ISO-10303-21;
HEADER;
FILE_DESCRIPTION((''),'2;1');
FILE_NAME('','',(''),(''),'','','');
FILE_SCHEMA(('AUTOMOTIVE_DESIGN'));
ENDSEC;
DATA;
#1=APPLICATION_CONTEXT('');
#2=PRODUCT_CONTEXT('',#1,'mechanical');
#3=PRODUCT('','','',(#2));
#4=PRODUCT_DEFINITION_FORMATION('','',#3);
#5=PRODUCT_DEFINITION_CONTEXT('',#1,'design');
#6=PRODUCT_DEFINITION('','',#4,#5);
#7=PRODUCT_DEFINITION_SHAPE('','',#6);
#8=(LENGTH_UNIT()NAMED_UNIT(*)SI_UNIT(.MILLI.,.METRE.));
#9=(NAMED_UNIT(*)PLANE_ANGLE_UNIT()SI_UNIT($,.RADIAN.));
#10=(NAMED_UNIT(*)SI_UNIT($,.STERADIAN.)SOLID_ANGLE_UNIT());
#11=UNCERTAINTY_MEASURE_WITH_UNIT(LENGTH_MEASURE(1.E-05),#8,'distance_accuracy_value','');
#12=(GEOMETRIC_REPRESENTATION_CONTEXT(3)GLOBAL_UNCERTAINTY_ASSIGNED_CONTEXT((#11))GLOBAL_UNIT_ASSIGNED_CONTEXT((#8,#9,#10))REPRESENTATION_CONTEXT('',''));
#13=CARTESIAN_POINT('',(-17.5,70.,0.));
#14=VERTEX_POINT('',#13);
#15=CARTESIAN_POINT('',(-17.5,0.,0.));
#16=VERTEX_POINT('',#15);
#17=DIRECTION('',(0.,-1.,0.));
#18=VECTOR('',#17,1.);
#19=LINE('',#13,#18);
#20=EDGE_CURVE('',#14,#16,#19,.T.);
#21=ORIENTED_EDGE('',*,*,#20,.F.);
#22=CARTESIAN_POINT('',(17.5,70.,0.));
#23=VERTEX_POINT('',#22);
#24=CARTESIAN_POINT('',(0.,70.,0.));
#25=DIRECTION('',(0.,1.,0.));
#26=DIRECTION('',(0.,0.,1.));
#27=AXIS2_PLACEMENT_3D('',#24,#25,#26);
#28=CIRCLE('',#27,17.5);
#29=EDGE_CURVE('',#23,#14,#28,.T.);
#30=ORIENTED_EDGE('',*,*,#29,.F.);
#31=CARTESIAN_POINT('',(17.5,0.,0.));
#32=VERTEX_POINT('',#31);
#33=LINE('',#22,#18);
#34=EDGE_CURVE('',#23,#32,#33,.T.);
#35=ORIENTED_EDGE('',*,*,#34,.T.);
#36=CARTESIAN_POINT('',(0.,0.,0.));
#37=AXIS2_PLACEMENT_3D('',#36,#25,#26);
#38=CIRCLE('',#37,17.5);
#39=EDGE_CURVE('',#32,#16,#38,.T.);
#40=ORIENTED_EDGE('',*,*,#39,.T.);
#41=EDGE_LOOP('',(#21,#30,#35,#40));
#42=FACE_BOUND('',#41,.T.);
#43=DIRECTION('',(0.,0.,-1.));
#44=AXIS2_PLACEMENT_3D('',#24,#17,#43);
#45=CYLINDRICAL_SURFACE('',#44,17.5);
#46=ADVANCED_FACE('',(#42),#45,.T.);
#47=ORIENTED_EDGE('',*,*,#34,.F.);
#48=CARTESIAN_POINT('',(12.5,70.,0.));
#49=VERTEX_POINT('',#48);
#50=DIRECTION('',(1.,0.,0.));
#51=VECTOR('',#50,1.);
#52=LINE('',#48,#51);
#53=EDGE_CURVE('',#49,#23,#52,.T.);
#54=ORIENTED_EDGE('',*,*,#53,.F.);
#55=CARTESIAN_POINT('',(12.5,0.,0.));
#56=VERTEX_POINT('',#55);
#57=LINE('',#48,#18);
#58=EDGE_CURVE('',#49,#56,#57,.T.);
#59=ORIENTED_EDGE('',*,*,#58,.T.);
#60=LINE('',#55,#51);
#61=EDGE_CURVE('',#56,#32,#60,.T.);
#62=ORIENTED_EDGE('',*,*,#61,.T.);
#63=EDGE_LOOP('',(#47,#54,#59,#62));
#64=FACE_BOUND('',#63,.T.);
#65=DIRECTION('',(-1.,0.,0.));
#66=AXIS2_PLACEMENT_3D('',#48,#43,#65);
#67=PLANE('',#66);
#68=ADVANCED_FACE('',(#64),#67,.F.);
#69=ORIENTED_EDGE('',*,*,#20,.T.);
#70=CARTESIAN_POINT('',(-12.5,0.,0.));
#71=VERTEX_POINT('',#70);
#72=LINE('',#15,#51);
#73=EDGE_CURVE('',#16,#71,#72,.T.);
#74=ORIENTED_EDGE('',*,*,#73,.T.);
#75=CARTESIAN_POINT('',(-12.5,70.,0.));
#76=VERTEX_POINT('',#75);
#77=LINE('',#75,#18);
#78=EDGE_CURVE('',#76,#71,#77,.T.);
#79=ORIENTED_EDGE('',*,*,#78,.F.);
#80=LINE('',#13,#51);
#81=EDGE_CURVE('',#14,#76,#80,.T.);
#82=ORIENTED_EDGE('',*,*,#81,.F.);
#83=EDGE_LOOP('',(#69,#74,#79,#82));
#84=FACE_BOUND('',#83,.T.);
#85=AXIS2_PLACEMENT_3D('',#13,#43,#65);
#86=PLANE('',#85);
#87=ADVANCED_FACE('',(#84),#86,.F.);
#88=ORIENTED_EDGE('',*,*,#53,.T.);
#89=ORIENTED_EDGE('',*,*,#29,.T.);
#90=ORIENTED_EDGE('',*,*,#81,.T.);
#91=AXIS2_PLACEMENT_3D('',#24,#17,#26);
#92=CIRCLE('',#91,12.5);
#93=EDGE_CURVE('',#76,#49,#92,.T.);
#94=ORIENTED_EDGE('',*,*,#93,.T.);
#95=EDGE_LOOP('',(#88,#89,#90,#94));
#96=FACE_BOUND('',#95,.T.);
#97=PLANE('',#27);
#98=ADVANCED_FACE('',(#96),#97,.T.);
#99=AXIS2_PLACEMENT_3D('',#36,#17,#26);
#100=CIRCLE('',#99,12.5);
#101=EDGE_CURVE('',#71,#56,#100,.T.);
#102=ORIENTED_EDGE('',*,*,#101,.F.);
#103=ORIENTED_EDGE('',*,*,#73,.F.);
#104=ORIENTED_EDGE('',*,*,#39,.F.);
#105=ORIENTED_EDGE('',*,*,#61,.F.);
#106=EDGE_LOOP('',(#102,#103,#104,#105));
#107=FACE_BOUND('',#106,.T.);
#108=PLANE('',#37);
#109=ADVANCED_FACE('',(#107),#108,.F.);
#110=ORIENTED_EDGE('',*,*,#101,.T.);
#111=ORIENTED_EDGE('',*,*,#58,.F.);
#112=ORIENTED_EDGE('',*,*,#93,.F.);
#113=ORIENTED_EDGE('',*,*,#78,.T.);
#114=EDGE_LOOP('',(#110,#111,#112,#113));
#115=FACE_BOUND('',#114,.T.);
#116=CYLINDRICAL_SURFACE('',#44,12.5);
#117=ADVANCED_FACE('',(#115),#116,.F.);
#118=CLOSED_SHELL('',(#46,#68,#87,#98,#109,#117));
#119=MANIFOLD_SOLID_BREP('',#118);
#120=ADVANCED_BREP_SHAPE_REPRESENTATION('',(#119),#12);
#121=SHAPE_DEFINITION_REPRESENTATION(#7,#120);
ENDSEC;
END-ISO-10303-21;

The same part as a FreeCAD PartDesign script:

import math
import FreeCAD as App
import Part
import Sketcher
Q = App.Units.Quantity

doc = App.newDocument("Part")
body = doc.addObject("PartDesign::Body", "Body")

# Sketch on XZ plane
sketch1 = body.newObject("Sketcher::SketchObject", "Sketch")
sketch1.AttachmentSupport = (doc.getObject("XZ_Plane"), [""])
sketch1.MapMode = "FlatFace"
sketch1.addGeometry([
    Part.LineSegment(App.Vector(-18, 0, 0), App.Vector(-12, 0, 0)),
    Part.ArcOfCircle(Part.Circle(App.Vector(0, 0, 0), App.Vector(0, 0, 1), 12), math.radians(180), math.radians(360)),
    Part.LineSegment(App.Vector(12, 0, 0), App.Vector(18, 0, 0)),
    Part.ArcOfCircle(Part.Circle(App.Vector(0, 0, 0), App.Vector(0, 0, 1), 18), math.radians(180), math.radians(360)),
], False)
sketch1.addConstraint([
    Sketcher.Constraint("Coincident", 0, 2, 1, 1),
    Sketcher.Constraint("Coincident", 1, 2, 2, 1),
    Sketcher.Constraint("Coincident", 2, 2, 3, 2),
    Sketcher.Constraint("Coincident", 3, 1, 0, 1),
    Sketcher.Constraint("Horizontal", 0),
    Sketcher.Constraint("Horizontal", 2),
    Sketcher.Constraint("Coincident", 1, 3, -1, 1),
    Sketcher.Constraint("Coincident", 3, 3, -1, 1),
    Sketcher.Constraint("PointOnObject", 0, 2, -1),
    Sketcher.Constraint("PointOnObject", 1, 2, -1),
    Sketcher.Constraint("Radius", 1, Q("12.5 mm")),
    Sketcher.Constraint("Radius", 3, Q("17.5 mm")),
])
pad1 = body.newObject("PartDesign::Pad", "Pad")
pad1.Profile = sketch1
pad1.Length = 70
pad1.Reversed = True

doc.recompute()
